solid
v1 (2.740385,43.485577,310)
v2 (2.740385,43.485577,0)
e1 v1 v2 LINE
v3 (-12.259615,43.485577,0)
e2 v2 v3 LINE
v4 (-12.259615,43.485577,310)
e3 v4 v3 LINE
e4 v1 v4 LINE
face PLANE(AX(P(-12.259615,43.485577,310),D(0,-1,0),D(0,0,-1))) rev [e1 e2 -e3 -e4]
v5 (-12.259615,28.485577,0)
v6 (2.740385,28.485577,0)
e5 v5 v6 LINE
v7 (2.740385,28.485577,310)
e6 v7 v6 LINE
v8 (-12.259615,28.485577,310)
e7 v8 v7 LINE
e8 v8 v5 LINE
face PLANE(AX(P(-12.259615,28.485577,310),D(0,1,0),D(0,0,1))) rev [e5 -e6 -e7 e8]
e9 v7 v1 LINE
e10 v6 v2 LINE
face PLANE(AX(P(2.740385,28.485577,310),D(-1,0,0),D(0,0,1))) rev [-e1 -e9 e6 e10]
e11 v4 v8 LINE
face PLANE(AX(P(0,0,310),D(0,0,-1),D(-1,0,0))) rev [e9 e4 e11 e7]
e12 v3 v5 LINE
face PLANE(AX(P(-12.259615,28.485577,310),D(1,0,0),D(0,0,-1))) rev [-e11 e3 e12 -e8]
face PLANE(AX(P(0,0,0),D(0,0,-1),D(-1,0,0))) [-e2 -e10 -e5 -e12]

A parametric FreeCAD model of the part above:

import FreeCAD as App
import Part
import Sketcher

V = App.Vector

doc = App.newDocument("Part")
body = doc.addObject("PartDesign::Body", "Body")

sketch1 = body.newObject("Sketcher::SketchObject", "Sketch")
sketch1.AttachmentSupport = (doc.getObject("XY_Plane"), [""])
sketch1.MapMode = "FlatFace"
sketch1.addGeometry([
    Part.LineSegment(V(-12.259615, 43.485577, 0), V(-12.259615, 28.485577, 0)),
    Part.LineSegment(V(-12.259615, 28.485577, 0), V(2.740385, 28.485577, 0)),
    Part.LineSegment(V(2.740385, 28.485577, 0), V(2.740385, 43.485577, 0)),
    Part.LineSegment(V(2.740385, 43.485577, 0), V(-12.259615, 43.485577, 0)),
], False)
sketch1.addConstraint([
    Sketcher.Constraint("Coincident", 0, 2, 1, 1),
    Sketcher.Constraint("Coincident", 1, 2, 2, 1),
    Sketcher.Constraint("Coincident", 2, 2, 3, 1),
    Sketcher.Constraint("Coincident", 3, 2, 0, 1),
    Sketcher.Constraint("Vertical", 0),
    Sketcher.Constraint("Horizontal", 1),
    Sketcher.Constraint("Vertical", 2),
    Sketcher.Constraint("Horizontal", 3),
    Sketcher.Constraint("Equal", 3, 0),
    Sketcher.Constraint("DistanceX", 1, 1, 1, 2, 15.0),
    Sketcher.Constraint("DistanceX", 0, 2, -1, 1, 12.259615),
    Sketcher.Constraint("DistanceY", -1, 1, 0, 2, 28.485577),
])
pad1 = body.newObject("PartDesign::Pad", "Pad")
pad1.Profile = sketch1
pad1.Length = 310

doc.recompute()
